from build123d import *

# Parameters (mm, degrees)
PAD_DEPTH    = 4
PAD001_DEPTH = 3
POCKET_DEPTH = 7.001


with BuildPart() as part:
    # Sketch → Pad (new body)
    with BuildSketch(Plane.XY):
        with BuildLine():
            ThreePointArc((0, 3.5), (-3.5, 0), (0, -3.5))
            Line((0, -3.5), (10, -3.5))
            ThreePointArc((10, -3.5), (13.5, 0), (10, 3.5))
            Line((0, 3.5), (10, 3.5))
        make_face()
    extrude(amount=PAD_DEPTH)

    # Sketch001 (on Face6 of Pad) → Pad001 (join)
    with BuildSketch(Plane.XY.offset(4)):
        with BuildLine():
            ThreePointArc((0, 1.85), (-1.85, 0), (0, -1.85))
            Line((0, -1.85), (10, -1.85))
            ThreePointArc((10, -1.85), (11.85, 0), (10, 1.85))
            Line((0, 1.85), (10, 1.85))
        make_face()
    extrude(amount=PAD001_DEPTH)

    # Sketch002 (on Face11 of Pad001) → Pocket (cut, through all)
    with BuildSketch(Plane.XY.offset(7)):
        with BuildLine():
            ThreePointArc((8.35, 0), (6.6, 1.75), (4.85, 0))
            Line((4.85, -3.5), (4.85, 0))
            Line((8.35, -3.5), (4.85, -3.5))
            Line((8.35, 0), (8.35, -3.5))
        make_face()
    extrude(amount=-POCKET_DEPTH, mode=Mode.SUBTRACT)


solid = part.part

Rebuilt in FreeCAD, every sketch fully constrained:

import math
import FreeCAD as App
import Part
import Sketcher

doc = App.newDocument("Part")
body = doc.addObject("PartDesign::Body", "Body")

# Sketch on XY plane
sketch1 = body.newObject("Sketcher::SketchObject", "Sketch")
sketch1.AttachmentSupport = (doc.getObject("XY_Plane"), [""])
sketch1.MapMode = "FlatFace"
sketch1.addGeometry([
    Part.ArcOfCircle(Part.Circle(App.Vector(0, 0, 0), App.Vector(0, 0, 1), 3.5), math.radians(90), math.radians(270)),
    Part.LineSegment(App.Vector(0, -3.5, 0), App.Vector(10, -3.5, 0)),
    Part.ArcOfCircle(Part.Circle(App.Vector(10, 0, 0), App.Vector(0, 0, 1), 3.5), math.radians(-90), math.radians(90)),
    Part.LineSegment(App.Vector(10, 3.5, 0), App.Vector(0, 3.5, 0)),
], False)
sketch1.addConstraint([
    Sketcher.Constraint("Tangent", 0, 2, 1, 1),
    Sketcher.Constraint("Tangent", 1, 2, 2, 1),
    Sketcher.Constraint("Tangent", 2, 2, 3, 1),
    Sketcher.Constraint("Tangent", 3, 2, 0, 1),
    Sketcher.Constraint("Horizontal", 1),
    Sketcher.Constraint("Horizontal", 3),
    Sketcher.Constraint("Coincident", 0, 3, -1, 1),
    Sketcher.Constraint("Radius", 0, 3.5),
    Sketcher.Constraint("DistanceX", 1, 1, 1, 2, 10.0),
])
pad1 = body.newObject("PartDesign::Pad", "Pad")
pad1.Profile = sketch1
pad1.Length = 4

# Sketch on XY plane
sketch2 = body.newObject("Sketcher::SketchObject", "Sketch001")
sketch2.AttachmentSupport = (doc.getObject("XY_Plane"), [""])
sketch2.MapMode = "FlatFace"
sketch2.AttachmentOffset = App.Placement(App.Vector(0, 0, 4), App.Rotation())
sketch2.addGeometry([
    Part.ArcOfCircle(Part.Circle(App.Vector(0, 0, 0), App.Vector(0, 0, 1), 1.9), math.radians(90), math.radians(270)),
    Part.LineSegment(App.Vector(0, -1.9, 0), App.Vector(10, -1.9, 0)),
    Part.ArcOfCircle(Part.Circle(App.Vector(10, 0, 0), App.Vector(0, 0, 1), 1.9), math.radians(-90), math.radians(90)),
    Part.LineSegment(App.Vector(10, 1.9, 0), App.Vector(0, 1.9, 0)),
], False)
sketch2.addConstraint([
    Sketcher.Constraint("Tangent", 0, 2, 1, 1),
    Sketcher.Constraint("Tangent", 1, 2, 2, 1),
    Sketcher.Constraint("Tangent", 2, 2, 3, 1),
    Sketcher.Constraint("Tangent", 3, 2, 0, 1),
    Sketcher.Constraint("Horizontal", 1),
    Sketcher.Constraint("Horizontal", 3),
    Sketcher.Constraint("Coincident", 0, 3, -1, 1),
    Sketcher.Constraint("DistanceX", 1, 1, 1, 2, 10.0),
    Sketcher.Constraint("Radius", 0, 1.85),
])
pad2 = body.newObject("PartDesign::Pad", "Pad001")
pad2.Profile = sketch2
pad2.Length = 3

# Sketch on XY plane
sketch3 = body.newObject("Sketcher::SketchObject", "Sketch002")
sketch3.AttachmentSupport = (doc.getObject("XY_Plane"), [""])
sketch3.MapMode = "FlatFace"
sketch3.AttachmentOffset = App.Placement(App.Vector(0, 0, 7), App.Rotation())
sketch3.addGeometry([
    Part.ArcOfCircle(Part.Circle(App.Vector(6.6, 0, 0), App.Vector(0, 0, 1), 1.8), math.radians(0), math.radians(180)),
    Part.LineSegment(App.Vector(4.8, 0, 0), App.Vector(4.8, -3.5, 0)),
    Part.LineSegment(App.Vector(4.8, -3.5, 0), App.Vector(8.3, -3.5, 0)),
    Part.LineSegment(App.Vector(8.3, -3.5, 0), App.Vector(8.3, 0, 0)),
], False)
sketch3.addConstraint([
    Sketcher.Constraint("Tangent", 0, 2, 1, 1),
    Sketcher.Constraint("Coincident", 1, 2, 2, 1),
    Sketcher.Constraint("Coincident", 2, 2, 3, 1),
    Sketcher.Constraint("Tangent", 3, 2, 0, 1),
    Sketcher.Constraint("Vertical", 1),
    Sketcher.Constraint("Horizontal", 2),
    Sketcher.Constraint("Vertical", 3),
    Sketcher.Constraint("PointOnObject", 0, 3, -1),
    Sketcher.Constraint("Equal", 2, 1),
    Sketcher.Constraint("Radius", 0, 1.75),
    Sketcher.Constraint("DistanceX", -1, 1, 0, 3, 6.6),
])
pocket1 = body.newObject("PartDesign::Pocket", "Pocket")
pocket1.Profile = sketch3
pocket1.Type = "ThroughAll"

doc.recompute()
